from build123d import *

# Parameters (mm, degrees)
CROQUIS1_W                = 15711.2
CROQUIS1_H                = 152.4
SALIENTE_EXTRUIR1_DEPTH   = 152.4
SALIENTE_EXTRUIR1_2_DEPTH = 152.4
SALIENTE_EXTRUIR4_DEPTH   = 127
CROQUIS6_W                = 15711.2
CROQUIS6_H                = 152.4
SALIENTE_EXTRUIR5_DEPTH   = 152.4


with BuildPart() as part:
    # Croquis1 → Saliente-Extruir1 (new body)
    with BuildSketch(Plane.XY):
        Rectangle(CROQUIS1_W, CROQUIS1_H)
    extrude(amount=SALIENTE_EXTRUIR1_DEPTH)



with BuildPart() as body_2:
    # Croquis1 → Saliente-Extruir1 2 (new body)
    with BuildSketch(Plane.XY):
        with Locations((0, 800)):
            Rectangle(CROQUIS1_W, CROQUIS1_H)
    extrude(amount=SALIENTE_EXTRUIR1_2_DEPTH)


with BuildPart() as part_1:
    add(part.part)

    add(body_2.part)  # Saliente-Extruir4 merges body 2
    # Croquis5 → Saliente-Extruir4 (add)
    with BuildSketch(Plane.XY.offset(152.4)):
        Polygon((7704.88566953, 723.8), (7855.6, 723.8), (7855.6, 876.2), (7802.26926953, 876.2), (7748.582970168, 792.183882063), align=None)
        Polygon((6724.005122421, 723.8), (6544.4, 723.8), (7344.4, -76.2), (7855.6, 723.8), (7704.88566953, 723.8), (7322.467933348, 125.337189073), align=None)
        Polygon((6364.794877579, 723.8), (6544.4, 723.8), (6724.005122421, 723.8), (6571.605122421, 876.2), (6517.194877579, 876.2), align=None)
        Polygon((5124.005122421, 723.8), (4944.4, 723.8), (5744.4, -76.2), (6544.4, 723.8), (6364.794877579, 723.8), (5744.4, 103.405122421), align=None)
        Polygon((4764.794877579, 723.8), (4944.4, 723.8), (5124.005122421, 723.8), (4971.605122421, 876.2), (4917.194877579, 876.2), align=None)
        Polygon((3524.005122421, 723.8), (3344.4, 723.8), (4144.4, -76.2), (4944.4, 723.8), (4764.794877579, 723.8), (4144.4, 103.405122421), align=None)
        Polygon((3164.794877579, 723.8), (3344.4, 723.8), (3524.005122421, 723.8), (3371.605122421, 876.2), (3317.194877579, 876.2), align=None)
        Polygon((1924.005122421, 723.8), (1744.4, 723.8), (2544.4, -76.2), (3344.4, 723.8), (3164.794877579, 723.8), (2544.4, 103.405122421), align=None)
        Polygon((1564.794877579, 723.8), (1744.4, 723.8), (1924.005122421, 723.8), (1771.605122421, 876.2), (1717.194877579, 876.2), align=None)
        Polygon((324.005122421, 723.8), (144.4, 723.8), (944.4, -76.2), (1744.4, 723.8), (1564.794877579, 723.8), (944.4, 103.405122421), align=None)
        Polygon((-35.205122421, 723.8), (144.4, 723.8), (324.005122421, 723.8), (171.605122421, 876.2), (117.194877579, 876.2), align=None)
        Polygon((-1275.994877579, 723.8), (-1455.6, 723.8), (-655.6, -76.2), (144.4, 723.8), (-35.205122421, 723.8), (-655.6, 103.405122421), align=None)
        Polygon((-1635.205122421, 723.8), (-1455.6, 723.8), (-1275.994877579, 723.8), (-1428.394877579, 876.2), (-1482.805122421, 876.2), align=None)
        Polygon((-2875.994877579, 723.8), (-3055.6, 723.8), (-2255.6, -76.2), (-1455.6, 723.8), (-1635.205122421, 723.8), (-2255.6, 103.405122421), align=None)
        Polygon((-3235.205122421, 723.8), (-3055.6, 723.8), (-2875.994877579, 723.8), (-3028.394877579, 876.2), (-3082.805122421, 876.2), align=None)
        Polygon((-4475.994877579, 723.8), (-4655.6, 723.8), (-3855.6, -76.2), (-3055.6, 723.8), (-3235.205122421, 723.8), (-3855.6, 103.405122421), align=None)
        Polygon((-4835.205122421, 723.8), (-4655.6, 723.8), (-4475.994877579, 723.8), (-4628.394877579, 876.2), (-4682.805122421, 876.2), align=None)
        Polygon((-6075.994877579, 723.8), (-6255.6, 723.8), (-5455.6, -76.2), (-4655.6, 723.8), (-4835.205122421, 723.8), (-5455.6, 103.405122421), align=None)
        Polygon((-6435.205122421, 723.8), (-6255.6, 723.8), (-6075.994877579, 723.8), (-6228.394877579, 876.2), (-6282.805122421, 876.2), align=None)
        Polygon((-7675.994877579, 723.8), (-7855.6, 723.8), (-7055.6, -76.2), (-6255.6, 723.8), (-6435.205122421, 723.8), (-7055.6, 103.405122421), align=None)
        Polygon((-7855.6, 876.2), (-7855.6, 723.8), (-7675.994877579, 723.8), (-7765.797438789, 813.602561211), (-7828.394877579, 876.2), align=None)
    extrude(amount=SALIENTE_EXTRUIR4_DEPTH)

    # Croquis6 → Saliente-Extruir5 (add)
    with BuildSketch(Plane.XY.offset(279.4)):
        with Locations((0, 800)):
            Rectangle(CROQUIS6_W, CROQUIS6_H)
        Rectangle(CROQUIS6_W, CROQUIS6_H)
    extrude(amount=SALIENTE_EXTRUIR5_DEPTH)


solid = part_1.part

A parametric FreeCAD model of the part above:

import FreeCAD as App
import Part
import Sketcher
from FreeCAD import Vector
Q = App.Units.Quantity


def add_polygon(sketch, points):
    """Adds a closed chain of lines whose ends are joined by coincident constraints."""
    first, n = sketch.GeometryCount, len(points)
    for a, b in zip(points, points[1:] + points[:1]):
        sketch.addGeometry(Part.LineSegment(App.Vector(*a, 0), App.Vector(*b, 0)), False)
    for i in range(n):
        sketch.addConstraint(Sketcher.Constraint("Coincident", first + i, 2, first + (i + 1) % n, 1))

doc = App.newDocument("Part")
body = doc.addObject("PartDesign::Body", "Body")

# Sketch on XY plane
sketch1 = body.newObject("Sketcher::SketchObject", "Sketch")
sketch1.AttachmentSupport = (doc.getObject("XY_Plane"), [""])
sketch1.MapMode = "FlatFace"
add_polygon(sketch1, [(-7856, 76), (-7856, -76), (7856, -76), (7856, 76)])  # lines 0-3
sketch1.addConstraint(Sketcher.Constraint("Vertical", 0))
sketch1.addConstraint(Sketcher.Constraint("Horizontal", 1))
sketch1.addConstraint(Sketcher.Constraint("Vertical", 2))
sketch1.addConstraint(Sketcher.Constraint("Horizontal", 3))
sketch1.addConstraint(Sketcher.Constraint("Symmetric", 0, 2, 2, 2, -1, 1))
sketch1.addConstraint(Sketcher.Constraint("DistanceY", 0, 2, 0, 1, Q("6 in")))
sketch1.addConstraint(Sketcher.Constraint("DistanceX", 1, 1, 1, 2, Q("15711.2 mm")))
pad1 = body.newObject("PartDesign::Pad", "Pad")
pad1.Profile = sketch1
pad1.Length = Q("6 in")
body2 = doc.addObject("PartDesign::Body", "Body001")

# Sketch on XY plane
sketch2 = body2.newObject("Sketcher::SketchObject", "Sketch001")
sketch2.AttachmentSupport = (doc.getObject("XY_Plane001"), [""])
sketch2.MapMode = "FlatFace"
add_polygon(sketch2, [(-7856, 876), (-7856, 724), (7856, 724), (7856, 876)])  # lines 0-3
sketch2.addConstraint(Sketcher.Constraint("Vertical", 0))
sketch2.addConstraint(Sketcher.Constraint("Horizontal", 1))
sketch2.addConstraint(Sketcher.Constraint("Vertical", 2))
sketch2.addConstraint(Sketcher.Constraint("Horizontal", 3))
sketch2.addConstraint(Sketcher.Constraint("DistanceY", 0, 2, 0, 1, Q("6 in")))
sketch2.addConstraint(Sketcher.Constraint("DistanceX", 1, 1, 1, 2, Q("15711.2 mm")))
sketch2.addConstraint(Sketcher.Constraint("DistanceX", 0, 2, -1, 1, Q("7855.6 mm")))
sketch2.addConstraint(Sketcher.Constraint("DistanceY", -1, 1, 0, 2, Q("723.8 mm")))
pad2 = body2.newObject("PartDesign::Pad", "Pad001")
pad2.Profile = sketch2
pad2.Length = Q("6 in")
body.AllowCompound = True
doc.recompute()

boolean = body.newObject("PartDesign::Boolean", "Boolean")
boolean.Type = "Fuse"
boolean.addObjects([body2])

# Sketch on XY plane
sketch3 = body.newObject("Sketcher::SketchObject", "Sketch002")
sketch3.AttachmentSupport = (doc.getObject("XY_Plane"), [""])
sketch3.MapMode = "FlatFace"
sketch3.AttachmentOffset = App.Placement(Vector(0, 0, 6 * 25.4), App.Rotation())
add_polygon(sketch3, [(7856, 724), (7856, 876), (7802, 876), (7749, 792), (7705, 724), (7322, 125), (6572, 876), (6517, 876), (5744, 103), (4972, 876), (4917, 876), (4144, 103), (3372, 876), (3317, 876), (2544, 103), (1772, 876), (1717, 876), (944, 103), (172, 876), (117, 876), (-656, 103), (-1428, 876), (-1483, 876), (-2256, 103), (-3028, 876), (-3083, 876), (-3856, 103), (-4628, 876), (-4683, 876), (-5456, 103), (-6228, 876), (-6283, 876), (-7056, 103), (-7676, 724), (-7766, 814), (-7828, 876), (-7856, 876), (-7856, 724), (-7056, -76), (-6256, 724), (-5456, -76), (-4656, 724), (-3856, -76), (-3056, 724), (-2256, -76), (-1456, 724), (-656, -76), (144, 724), (944, -76), (1744, 724), (2544, -76), (3344, 724), (4144, -76), (4944, 724), (5744, -76), (6544, 724), (7344, -76)])  # lines 0-56
sketch3.addConstraint(Sketcher.Constraint("Vertical", 0))
sketch3.addConstraint(Sketcher.Constraint("Horizontal", 1))
sketch3.addConstraint(Sketcher.Constraint("Horizontal", 6))
sketch3.addConstraint(Sketcher.Constraint("Horizontal", 9))
sketch3.addConstraint(Sketcher.Constraint("Horizontal", 12))
sketch3.addConstraint(Sketcher.Constraint("Horizontal", 15))
sketch3.addConstraint(Sketcher.Constraint("Horizontal", 18))
sketch3.addConstraint(Sketcher.Constraint("Horizontal", 21))
sketch3.addConstraint(Sketcher.Constraint("Horizontal", 24))
sketch3.addConstraint(Sketcher.Constraint("Horizontal", 27))
sketch3.addConstraint(Sketcher.Constraint("Horizontal", 30))
sketch3.addConstraint(Sketcher.Constraint("Horizontal", 35))
sketch3.addConstraint(Sketcher.Constraint("Vertical", 36))
sketch3.addConstraint(Sketcher.Constraint("Symmetric", 0, 2, 35, 2, -2))
sketch3.addConstraint(Sketcher.Constraint("Parallel", 2, 3))
sketch3.addConstraint(Sketcher.Constraint("Parallel", 3, 4))
sketch3.addConstraint(Sketcher.Constraint("Perpendicular", 5, 7))
sketch3.addConstraint(Sketcher.Constraint("Perpendicular", 7, 8))
sketch3.addConstraint(Sketcher.Constraint("Perpendicular", 8, 10))
sketch3.addConstraint(Sketcher.Constraint("Perpendicular", 10, 11))
sketch3.addConstraint(Sketcher.Constraint("Perpendicular", 11, 13))
sketch3.addConstraint(Sketcher.Constraint("Perpendicular", 13, 14))
sketch3.addConstraint(Sketcher.Constraint("Perpendicular", 14, 16))
sketch3.addConstraint(Sketcher.Constraint("Perpendicular", 16, 17))
sketch3.addConstraint(Sketcher.Constraint("Perpendicular", 17, 19))
sketch3.addConstraint(Sketcher.Constraint("Perpendicular", 19, 20))
sketch3.addConstraint(Sketcher.Constraint("Perpendicular", 20, 22))
sketch3.addConstraint(Sketcher.Constraint("Perpendicular", 22, 23))
sketch3.addConstraint(Sketcher.Constraint("Perpendicular", 23, 25))
sketch3.addConstraint(Sketcher.Constraint("Perpendicular", 25, 26))
sketch3.addConstraint(Sketcher.Constraint("Perpendicular", 26, 28))
sketch3.addConstraint(Sketcher.Constraint("Perpendicular", 28, 29))
sketch3.addConstraint(Sketcher.Constraint("Perpendicular", 29, 31))
sketch3.addConstraint(Sketcher.Constraint("Perpendicular", 31, 32))
sketch3.addConstraint(Sketcher.Constraint("Parallel", 32, 33))
sketch3.addConstraint(Sketcher.Constraint("Parallel", 33, 34))
sketch3.addConstraint(Sketcher.Constraint("Parallel", 34, 37))
sketch3.addConstraint(Sketcher.Constraint("Perpendicular", 37, 38))
sketch3.addConstraint(Sketcher.Constraint("Perpendicular", 38, 39))
sketch3.addConstraint(Sketcher.Constraint("Perpendicular", 39, 40))
sketch3.addConstraint(Sketcher.Constraint("Perpendicular", 40, 41))
sketch3.addConstraint(Sketcher.Constraint("Perpendicular", 41, 42))
sketch3.addConstraint(Sketcher.Constraint("Perpendicular", 42, 43))
sketch3.addConstraint(Sketcher.Constraint("Perpendicular", 43, 44))
sketch3.addConstraint(Sketcher.Constraint("Perpendicular", 44, 45))
sketch3.addConstraint(Sketcher.Constraint("Perpendicular", 45, 46))
sketch3.addConstraint(Sketcher.Constraint("Perpendicular", 46, 47))
sketch3.addConstraint(Sketcher.Constraint("Perpendicular", 47, 48))
sketch3.addConstraint(Sketcher.Constraint("Perpendicular", 48, 49))
sketch3.addConstraint(Sketcher.Constraint("Perpendicular", 49, 50))
sketch3.addConstraint(Sketcher.Constraint("Perpendicular", 50, 51))
sketch3.addConstraint(Sketcher.Constraint("Perpendicular", 51, 52))
sketch3.addConstraint(Sketcher.Constraint("Perpendicular", 52, 53))
sketch3.addConstraint(Sketcher.Constraint("Perpendicular", 53, 54))
sketch3.addConstraint(Sketcher.Constraint("Perpendicular", 54, 55))
sketch3.addConstraint(Sketcher.Constraint("Parallel", 4, 56))
sketch3.addConstraint(Sketcher.Constraint("Horizontal", 1, 2, 5, 2))
sketch3.addConstraint(Sketcher.Constraint("Horizontal", 6, 2, 8, 2))
sketch3.addConstraint(Sketcher.Constraint("Horizontal", 7, 2, 10, 2))
sketch3.addConstraint(Sketcher.Constraint("Horizontal", 9, 2, 11, 2))
sketch3.addConstraint(Sketcher.Constraint("Horizontal", 10, 2, 13, 2))
sketch3.addConstraint(Sketcher.Constraint("Horizontal", 12, 2, 14, 2))
sketch3.addConstraint(Sketcher.Constraint("Horizontal", 13, 2, 16, 2))
sketch3.addConstraint(Sketcher.Constraint("Horizontal", 15, 2, 17, 2))
sketch3.addConstraint(Sketcher.Constraint("Horizontal", 16, 2, 19, 2))
sketch3.addConstraint(Sketcher.Constraint("Horizontal", 18, 2, 20, 2))
sketch3.addConstraint(Sketcher.Constraint("Horizontal", 19, 2, 22, 2))
sketch3.addConstraint(Sketcher.Constraint("Horizontal", 21, 2, 23, 2))
sketch3.addConstraint(Sketcher.Constraint("Horizontal", 22, 2, 25, 2))
sketch3.addConstraint(Sketcher.Constraint("Horizontal", 24, 2, 26, 2))
sketch3.addConstraint(Sketcher.Constraint("Horizontal", 25, 2, 28, 2))
sketch3.addConstraint(Sketcher.Constraint("Horizontal", 27, 2, 29, 2))
sketch3.addConstraint(Sketcher.Constraint("Horizontal", 28, 2, 31, 2))
sketch3.addConstraint(Sketcher.Constraint("Horizontal", 3, 2, 32, 2))
sketch3.addConstraint(Sketcher.Constraint("Horizontal", 32, 2, 36, 2))
sketch3.addConstraint(Sketcher.Constraint("Horizontal", 36, 2, 38, 2))
sketch3.addConstraint(Sketcher.Constraint("Horizontal", 37, 2, 39, 2))
sketch3.addConstraint(Sketcher.Constraint("Horizontal", 38, 2, 40, 2))
sketch3.addConstraint(Sketcher.Constraint("Horizontal", 39, 2, 41, 2))
sketch3.addConstraint(Sketcher.Constraint("Horizontal", 40, 2, 42, 2))
sketch3.addConstraint(Sketcher.Constraint("Horizontal", 41, 2, 43, 2))
sketch3.addConstraint(Sketcher.Constraint("Horizontal", 42, 2, 44, 2))
sketch3.addConstraint(Sketcher.Constraint("Horizontal", 43, 2, 45, 2))
sketch3.addConstraint(Sketcher.Constraint("Horizontal", 44, 2, 46, 2))
sketch3.addConstraint(Sketcher.Constraint("Horizontal", 45, 2, 47, 2))
sketch3.addConstraint(Sketcher.Constraint("Horizontal", 46, 2, 48, 2))
sketch3.addConstraint(Sketcher.Constraint("Horizontal", 47, 2, 49, 2))
sketch3.addConstraint(Sketcher.Constraint("Horizontal", 48, 2, 50, 2))
sketch3.addConstraint(Sketcher.Constraint("Horizontal", 49, 2, 51, 2))
sketch3.addConstraint(Sketcher.Constraint("Horizontal", 50, 2, 52, 2))
sketch3.addConstraint(Sketcher.Constraint("Horizontal", 51, 2, 53, 2))
sketch3.addConstraint(Sketcher.Constraint("Horizontal", 52, 2, 54, 2))
sketch3.addConstraint(Sketcher.Constraint("Horizontal", 53, 2, 55, 2))
sketch3.addConstraint(Sketcher.Constraint("Horizontal", 54, 2, 56, 2))
sketch3.addConstraint(Sketcher.Constraint("Vertical", 31, 2, 37, 2))
sketch3.addConstraint(Sketcher.Constraint("Vertical", 28, 2, 39, 2))
sketch3.addConstraint(Sketcher.Constraint("Vertical", 25, 2, 41, 2))
sketch3.addConstraint(Sketcher.Constraint("Vertical", 22, 2, 43, 2))
sketch3.addConstraint(Sketcher.Constraint("Vertical", 19, 2, 45, 2))
sketch3.addConstraint(Sketcher.Constraint("Vertical", 16, 2, 47, 2))
sketch3.addConstraint(Sketcher.Constraint("Vertical", 13, 2, 49, 2))
sketch3.addConstraint(Sketcher.Constraint("Vertical", 10, 2, 51, 2))
sketch3.addConstraint(Sketcher.Constraint("Vertical", 7, 2, 53, 2))
sketch3.addConstraint(Sketcher.Constraint("Equal", 6, 9))
sketch3.addConstraint(Sketcher.Constraint("Equal", 7, 8))
sketch3.addConstraint(Sketcher.Constraint("DistanceY", 0, 1, 0, 2, Q("6 in")))
sketch3.addConstraint(Sketcher.Constraint("Distance", 33, Q("5 in")))
sketch3.addConstraint(Sketcher.Constraint("DistanceY", 37, 2, -1, 1, Q("3 in")))
sketch3.addConstraint(Sketcher.Constraint("Distance", 3, Q("3.195 in")))
sketch3.addConstraint(Sketcher.Constraint("DistanceX", 3, 2, 1, 2, Q("3.834 in")))
sketch3.addConstraint(Sketcher.Constraint("DistanceX", 1, 2, 1, 1, Q("53.33073 mm")))
sketch3.addConstraint(Sketcher.Constraint("DistanceX", -1, 1, 0, 2, Q("7855.6 mm")))
sketch3.addConstraint(Sketcher.Constraint("Distance", 5, Q("1061.880371 mm")))
pad3 = body.newObject("PartDesign::Pad", "Pad002")
pad3.Profile = sketch3
pad3.Length = Q("5 in")

# Sketch on XY plane
sketch4 = body.newObject("Sketcher::SketchObject", "Sketch003")
sketch4.AttachmentSupport = (doc.getObject("XY_Plane"), [""])
sketch4.MapMode = "FlatFace"
sketch4.AttachmentOffset = App.Placement(Vector(0, 0, 11 * 25.4), App.Rotation())
add_polygon(sketch4, [(-7856, 876), (-7856, 724), (7856, 724), (7856, 876)])  # lines 0-3
add_polygon(sketch4, [(-7856, 76), (-7856, -76), (7856, -76), (7856, 76)])  # lines 4-7
sketch4.addConstraint(Sketcher.Constraint("Vertical", 0))
sketch4.addConstraint(Sketcher.Constraint("Horizontal", 1))
sketch4.addConstraint(Sketcher.Constraint("Vertical", 2))
sketch4.addConstraint(Sketcher.Constraint("Horizontal", 3))
sketch4.addConstraint(Sketcher.Constraint("Vertical", 4))
sketch4.addConstraint(Sketcher.Constraint("Horizontal", 5))
sketch4.addConstraint(Sketcher.Constraint("Vertical", 6))
sketch4.addConstraint(Sketcher.Constraint("Horizontal", 7))
sketch4.addConstraint(Sketcher.Constraint("Symmetric", 4, 2, 6, 2, -1, 1))
sketch4.addConstraint(Sketcher.Constraint("Vertical", 3, 2, 4, 2))
sketch4.addConstraint(Sketcher.Constraint("Vertical", 2, 2, 5, 2))
sketch4.addConstraint(Sketcher.Constraint("Equal", 2, 4))
sketch4.addConstraint(Sketcher.Constraint("DistanceY", 0, 2, 0, 1, Q("6 in")))
sketch4.addConstraint(Sketcher.Constraint("DistanceX", 1, 1, 1, 2, Q("15711.2 mm")))
sketch4.addConstraint(Sketcher.Constraint("DistanceY", -1, 1, 0, 2, Q("723.8 mm")))
pad4 = body.newObject("PartDesign::Pad", "Pad003")
pad4.Profile = sketch4
pad4.Length = Q("6 in")

doc.recompute()
